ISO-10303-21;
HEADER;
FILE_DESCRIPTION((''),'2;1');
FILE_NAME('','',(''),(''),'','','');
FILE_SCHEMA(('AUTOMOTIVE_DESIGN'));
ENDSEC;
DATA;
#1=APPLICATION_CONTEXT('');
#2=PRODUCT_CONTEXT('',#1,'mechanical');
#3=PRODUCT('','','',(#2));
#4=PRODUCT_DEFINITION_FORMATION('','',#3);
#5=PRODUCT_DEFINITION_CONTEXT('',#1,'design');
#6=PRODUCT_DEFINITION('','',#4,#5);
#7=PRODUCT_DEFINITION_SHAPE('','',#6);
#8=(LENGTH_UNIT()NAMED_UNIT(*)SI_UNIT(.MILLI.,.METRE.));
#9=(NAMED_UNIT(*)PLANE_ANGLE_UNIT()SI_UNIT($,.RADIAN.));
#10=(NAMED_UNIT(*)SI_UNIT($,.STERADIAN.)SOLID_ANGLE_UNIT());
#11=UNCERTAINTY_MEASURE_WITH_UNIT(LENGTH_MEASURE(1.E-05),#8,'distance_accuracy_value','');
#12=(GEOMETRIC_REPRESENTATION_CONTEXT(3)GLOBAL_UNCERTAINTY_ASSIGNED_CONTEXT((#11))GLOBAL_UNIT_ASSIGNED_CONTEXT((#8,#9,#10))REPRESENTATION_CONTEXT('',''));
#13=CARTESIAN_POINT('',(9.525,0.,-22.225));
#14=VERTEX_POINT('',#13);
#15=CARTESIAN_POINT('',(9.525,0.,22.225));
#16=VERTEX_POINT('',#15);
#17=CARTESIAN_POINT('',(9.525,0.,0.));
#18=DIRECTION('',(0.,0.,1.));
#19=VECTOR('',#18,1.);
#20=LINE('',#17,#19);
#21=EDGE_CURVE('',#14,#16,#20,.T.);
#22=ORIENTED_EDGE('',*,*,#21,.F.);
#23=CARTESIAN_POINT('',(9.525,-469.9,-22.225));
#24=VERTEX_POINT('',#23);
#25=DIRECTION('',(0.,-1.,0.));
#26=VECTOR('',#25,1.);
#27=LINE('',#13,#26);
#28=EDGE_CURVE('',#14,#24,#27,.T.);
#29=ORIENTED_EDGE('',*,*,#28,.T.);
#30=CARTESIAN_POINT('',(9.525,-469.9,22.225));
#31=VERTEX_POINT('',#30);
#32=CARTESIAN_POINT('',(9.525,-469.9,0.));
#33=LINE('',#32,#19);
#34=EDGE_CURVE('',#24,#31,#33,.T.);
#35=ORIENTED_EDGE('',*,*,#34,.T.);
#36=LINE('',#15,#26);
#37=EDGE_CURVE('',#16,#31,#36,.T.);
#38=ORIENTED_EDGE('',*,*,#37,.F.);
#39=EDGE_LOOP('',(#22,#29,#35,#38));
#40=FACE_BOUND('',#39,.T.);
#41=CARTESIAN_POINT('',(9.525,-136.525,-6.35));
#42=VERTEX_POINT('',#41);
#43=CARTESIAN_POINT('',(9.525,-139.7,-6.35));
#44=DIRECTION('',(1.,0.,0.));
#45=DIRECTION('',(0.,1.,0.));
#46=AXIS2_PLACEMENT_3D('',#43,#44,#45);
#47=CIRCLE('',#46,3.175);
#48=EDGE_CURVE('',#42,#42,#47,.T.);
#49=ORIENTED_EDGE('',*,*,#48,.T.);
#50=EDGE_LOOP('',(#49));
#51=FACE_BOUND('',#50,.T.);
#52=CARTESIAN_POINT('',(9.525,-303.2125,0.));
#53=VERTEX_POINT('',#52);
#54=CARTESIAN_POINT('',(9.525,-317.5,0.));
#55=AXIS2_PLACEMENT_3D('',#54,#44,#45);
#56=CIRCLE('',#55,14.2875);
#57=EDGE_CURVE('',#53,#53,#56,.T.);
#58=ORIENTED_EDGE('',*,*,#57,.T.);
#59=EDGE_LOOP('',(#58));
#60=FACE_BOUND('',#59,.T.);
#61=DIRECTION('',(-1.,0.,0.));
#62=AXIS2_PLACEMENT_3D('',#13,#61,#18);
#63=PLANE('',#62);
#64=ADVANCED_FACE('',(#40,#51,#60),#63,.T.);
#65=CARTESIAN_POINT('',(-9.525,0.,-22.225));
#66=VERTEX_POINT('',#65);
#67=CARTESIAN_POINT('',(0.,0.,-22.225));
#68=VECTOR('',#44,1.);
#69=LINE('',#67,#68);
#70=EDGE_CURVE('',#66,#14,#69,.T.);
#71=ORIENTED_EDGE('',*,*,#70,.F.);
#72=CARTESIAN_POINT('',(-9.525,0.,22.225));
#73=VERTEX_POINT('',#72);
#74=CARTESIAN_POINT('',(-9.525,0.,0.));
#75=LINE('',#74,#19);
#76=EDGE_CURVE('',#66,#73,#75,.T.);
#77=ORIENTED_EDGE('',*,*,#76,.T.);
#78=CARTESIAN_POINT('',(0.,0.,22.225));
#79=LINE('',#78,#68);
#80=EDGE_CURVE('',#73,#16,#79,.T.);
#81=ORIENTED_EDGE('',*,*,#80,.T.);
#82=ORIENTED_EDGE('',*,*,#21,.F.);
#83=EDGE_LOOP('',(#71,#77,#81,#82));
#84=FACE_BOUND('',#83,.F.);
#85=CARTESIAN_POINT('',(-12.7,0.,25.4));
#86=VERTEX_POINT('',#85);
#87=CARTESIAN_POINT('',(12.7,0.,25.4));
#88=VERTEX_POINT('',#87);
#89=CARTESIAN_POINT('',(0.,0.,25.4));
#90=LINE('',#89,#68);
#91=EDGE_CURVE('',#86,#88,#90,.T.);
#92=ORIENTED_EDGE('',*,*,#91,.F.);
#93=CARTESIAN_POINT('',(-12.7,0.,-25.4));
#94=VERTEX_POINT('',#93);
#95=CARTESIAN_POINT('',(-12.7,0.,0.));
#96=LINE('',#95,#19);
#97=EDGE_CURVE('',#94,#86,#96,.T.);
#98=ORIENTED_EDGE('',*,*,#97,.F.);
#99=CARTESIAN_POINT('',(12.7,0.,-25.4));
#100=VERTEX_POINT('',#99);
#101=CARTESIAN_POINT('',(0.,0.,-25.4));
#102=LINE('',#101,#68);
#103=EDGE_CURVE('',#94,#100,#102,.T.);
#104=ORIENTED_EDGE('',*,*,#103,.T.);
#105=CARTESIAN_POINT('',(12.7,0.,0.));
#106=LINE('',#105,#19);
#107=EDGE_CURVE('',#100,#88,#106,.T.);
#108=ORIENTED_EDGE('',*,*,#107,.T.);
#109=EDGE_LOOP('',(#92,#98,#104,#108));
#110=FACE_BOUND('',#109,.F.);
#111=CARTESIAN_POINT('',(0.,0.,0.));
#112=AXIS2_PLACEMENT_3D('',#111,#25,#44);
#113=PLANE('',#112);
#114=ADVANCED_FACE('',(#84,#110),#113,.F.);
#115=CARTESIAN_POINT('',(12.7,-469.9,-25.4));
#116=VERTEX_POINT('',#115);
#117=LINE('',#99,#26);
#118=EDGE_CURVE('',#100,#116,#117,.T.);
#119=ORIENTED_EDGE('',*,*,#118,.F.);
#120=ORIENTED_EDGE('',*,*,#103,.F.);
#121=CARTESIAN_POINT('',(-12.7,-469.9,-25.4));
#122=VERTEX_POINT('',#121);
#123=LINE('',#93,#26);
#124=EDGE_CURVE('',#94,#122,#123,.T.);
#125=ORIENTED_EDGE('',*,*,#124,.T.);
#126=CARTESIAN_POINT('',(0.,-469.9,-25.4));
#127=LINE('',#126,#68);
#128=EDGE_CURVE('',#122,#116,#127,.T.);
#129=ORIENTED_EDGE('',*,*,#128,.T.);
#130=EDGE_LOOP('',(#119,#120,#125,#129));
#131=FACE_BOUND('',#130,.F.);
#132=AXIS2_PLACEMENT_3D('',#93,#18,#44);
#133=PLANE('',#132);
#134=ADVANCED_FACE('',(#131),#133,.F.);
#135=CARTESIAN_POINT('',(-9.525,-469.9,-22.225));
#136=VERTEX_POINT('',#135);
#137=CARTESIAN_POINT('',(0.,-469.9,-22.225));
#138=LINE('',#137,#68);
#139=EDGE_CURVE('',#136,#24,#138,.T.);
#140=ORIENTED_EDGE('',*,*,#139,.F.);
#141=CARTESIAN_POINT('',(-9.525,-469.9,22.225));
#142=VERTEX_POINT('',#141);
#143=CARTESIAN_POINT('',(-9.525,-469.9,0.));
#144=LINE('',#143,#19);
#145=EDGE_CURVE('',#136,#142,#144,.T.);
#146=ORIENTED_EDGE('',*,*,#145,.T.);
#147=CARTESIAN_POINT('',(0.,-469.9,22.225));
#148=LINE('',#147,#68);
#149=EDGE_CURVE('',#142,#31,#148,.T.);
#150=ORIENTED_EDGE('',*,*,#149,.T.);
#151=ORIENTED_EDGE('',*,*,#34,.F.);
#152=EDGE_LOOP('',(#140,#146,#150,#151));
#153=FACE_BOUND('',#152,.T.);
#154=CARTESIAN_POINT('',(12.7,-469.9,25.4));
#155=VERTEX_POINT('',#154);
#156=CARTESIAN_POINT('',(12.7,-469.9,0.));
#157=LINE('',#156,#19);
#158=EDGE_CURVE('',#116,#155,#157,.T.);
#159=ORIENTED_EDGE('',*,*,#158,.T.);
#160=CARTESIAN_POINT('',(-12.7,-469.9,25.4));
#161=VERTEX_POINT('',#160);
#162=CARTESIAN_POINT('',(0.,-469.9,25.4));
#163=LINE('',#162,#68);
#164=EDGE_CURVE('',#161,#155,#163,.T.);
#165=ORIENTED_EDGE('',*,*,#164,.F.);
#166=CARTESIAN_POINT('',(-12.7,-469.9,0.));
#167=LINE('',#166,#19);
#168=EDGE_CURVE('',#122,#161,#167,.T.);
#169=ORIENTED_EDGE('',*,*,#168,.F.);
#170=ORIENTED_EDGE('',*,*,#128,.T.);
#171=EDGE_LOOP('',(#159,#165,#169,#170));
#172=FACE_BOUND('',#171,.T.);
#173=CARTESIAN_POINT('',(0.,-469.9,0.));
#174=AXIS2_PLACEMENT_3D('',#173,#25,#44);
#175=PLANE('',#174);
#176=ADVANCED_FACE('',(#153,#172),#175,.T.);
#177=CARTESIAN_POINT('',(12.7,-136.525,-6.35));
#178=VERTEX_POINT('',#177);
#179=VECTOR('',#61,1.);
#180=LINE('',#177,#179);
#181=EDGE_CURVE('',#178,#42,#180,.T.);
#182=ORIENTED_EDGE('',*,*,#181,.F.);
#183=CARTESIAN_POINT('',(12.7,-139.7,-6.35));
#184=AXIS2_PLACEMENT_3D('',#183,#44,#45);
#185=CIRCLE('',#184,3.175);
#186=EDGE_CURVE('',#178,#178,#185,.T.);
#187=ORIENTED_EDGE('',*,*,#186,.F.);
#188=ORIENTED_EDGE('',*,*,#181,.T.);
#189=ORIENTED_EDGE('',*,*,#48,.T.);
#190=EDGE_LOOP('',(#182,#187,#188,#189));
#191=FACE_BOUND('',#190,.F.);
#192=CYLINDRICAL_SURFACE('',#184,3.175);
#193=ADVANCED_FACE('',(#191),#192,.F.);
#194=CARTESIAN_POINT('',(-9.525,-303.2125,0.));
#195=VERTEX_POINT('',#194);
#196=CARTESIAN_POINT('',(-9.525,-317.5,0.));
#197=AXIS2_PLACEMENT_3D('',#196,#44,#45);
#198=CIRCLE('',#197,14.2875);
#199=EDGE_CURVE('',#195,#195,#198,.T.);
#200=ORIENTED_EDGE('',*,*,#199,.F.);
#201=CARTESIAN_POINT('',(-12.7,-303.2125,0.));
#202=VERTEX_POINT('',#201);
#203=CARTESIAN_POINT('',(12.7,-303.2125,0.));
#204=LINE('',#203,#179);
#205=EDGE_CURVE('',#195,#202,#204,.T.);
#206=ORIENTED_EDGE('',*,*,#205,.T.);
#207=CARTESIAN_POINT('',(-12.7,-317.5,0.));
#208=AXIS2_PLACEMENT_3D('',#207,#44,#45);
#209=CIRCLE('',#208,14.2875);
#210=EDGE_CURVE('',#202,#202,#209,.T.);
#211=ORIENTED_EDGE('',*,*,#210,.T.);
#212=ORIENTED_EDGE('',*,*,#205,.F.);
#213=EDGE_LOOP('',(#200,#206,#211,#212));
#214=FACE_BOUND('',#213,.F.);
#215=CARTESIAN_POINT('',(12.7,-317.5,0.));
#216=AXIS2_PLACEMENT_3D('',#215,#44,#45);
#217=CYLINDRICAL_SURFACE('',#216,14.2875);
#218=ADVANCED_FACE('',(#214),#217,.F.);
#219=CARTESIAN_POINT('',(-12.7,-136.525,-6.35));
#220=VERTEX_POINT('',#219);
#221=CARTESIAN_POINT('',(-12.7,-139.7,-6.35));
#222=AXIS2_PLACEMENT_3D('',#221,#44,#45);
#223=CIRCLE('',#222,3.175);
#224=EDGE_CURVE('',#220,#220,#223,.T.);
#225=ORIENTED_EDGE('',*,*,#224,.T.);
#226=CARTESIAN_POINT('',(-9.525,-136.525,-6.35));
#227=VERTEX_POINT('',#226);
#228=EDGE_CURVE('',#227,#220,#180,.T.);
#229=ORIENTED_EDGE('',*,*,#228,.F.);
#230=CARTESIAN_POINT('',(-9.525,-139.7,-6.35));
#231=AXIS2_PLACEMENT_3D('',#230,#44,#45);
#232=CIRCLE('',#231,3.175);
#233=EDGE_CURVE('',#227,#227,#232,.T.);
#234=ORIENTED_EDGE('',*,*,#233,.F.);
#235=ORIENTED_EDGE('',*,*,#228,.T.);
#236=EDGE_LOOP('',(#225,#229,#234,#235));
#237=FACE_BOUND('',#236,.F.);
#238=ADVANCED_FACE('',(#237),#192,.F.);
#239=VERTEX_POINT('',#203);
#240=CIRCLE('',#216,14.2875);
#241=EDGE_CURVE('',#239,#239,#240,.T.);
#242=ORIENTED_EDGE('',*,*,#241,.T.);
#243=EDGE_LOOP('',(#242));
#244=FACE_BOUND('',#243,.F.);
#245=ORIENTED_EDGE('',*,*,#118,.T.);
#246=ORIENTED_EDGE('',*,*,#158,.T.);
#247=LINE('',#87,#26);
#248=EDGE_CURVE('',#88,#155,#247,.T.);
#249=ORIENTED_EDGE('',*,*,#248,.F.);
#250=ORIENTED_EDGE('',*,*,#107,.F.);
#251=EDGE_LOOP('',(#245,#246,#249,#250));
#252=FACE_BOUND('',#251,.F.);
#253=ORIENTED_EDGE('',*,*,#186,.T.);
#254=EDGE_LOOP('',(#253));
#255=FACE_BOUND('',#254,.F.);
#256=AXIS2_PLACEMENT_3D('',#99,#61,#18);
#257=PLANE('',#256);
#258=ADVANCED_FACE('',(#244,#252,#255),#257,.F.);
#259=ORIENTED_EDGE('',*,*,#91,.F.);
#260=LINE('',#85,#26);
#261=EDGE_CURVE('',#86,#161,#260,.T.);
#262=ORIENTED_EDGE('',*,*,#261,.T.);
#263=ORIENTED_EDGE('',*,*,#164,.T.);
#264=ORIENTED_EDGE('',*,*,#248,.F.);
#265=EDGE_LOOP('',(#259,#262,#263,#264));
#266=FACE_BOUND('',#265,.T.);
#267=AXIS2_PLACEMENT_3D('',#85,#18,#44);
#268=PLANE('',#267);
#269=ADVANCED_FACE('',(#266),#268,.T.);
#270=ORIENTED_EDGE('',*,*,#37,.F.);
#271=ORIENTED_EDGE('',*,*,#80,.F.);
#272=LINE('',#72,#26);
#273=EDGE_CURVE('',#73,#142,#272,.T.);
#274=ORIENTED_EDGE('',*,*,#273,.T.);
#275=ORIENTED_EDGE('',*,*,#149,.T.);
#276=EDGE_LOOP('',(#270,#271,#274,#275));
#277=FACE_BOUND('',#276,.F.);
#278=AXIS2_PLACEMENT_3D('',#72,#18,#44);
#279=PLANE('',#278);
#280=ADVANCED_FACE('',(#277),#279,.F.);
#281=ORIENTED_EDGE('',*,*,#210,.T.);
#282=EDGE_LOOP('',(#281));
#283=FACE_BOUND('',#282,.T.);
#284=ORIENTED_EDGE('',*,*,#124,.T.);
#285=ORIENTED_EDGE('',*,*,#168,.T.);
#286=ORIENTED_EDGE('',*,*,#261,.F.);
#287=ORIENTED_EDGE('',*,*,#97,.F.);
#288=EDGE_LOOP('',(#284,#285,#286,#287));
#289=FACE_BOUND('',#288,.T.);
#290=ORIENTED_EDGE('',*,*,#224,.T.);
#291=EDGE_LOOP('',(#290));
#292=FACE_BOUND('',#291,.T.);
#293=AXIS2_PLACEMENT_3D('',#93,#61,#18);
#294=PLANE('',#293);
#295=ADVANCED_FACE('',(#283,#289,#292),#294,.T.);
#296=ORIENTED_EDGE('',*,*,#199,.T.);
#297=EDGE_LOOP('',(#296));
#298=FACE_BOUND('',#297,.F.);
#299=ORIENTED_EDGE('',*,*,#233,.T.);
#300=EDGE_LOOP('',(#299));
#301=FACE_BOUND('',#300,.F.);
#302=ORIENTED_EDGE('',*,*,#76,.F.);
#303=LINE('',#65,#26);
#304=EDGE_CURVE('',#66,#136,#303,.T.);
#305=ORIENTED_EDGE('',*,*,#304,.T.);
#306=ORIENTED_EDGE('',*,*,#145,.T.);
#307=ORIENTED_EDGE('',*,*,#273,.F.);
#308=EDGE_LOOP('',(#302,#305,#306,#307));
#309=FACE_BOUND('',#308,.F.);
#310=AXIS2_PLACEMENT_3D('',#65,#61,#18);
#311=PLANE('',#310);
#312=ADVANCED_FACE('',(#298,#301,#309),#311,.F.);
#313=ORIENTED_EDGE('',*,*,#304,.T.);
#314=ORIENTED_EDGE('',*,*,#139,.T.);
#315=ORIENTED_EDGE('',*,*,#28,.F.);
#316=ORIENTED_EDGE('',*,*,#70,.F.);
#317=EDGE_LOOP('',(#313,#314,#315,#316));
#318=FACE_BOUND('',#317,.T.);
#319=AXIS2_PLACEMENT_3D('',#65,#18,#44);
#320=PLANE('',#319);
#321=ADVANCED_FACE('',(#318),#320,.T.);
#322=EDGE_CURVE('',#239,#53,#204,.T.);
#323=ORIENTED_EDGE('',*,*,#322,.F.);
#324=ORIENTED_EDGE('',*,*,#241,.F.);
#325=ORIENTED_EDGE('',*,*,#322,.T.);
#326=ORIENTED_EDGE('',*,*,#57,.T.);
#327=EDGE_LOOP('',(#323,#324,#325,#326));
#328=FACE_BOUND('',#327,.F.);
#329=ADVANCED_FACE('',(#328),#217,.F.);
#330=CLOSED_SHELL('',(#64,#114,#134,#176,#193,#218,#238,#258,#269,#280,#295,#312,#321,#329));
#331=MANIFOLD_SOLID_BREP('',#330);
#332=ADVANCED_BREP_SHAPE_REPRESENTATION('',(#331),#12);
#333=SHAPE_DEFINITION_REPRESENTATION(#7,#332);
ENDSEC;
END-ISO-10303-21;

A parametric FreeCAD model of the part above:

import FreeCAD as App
import Part
import Sketcher
Q = App.Units.Quantity


def add_polygon(sketch, points):
    """Adds a closed chain of lines whose ends are joined by coincident constraints."""
    first, n = sketch.GeometryCount, len(points)
    for a, b in zip(points, points[1:] + points[:1]):
        sketch.addGeometry(Part.LineSegment(App.Vector(*a, 0), App.Vector(*b, 0)), False)
    for i in range(n):
        sketch.addConstraint(Sketcher.Constraint("Coincident", first + i, 2, first + (i + 1) % n, 1))

doc = App.newDocument("Part")
body = doc.addObject("PartDesign::Body", "Body")

# Sketch on XZ plane
sketch1 = body.newObject("Sketcher::SketchObject", "Sketch")
sketch1.AttachmentSupport = (doc.getObject("XZ_Plane"), [""])
sketch1.MapMode = "FlatFace"
add_polygon(sketch1, [(-13, 25), (-13, -25), (13, -25), (13, 25)])  # lines 0-3
add_polygon(sketch1, [(10, -22), (-10, -22), (-10, 22), (10, 22)])  # lines 4-7
sketch1.addConstraint([
    Sketcher.Constraint("Vertical", 0),
    Sketcher.Constraint("Horizontal", 1),
    Sketcher.Constraint("Vertical", 2),
    Sketcher.Constraint("Horizontal", 3),
    Sketcher.Constraint("Horizontal", 4),
    Sketcher.Constraint("Vertical", 5),
    Sketcher.Constraint("Horizontal", 6),
    Sketcher.Constraint("Vertical", 7),
    Sketcher.Constraint("Symmetric", 0, 2, 2, 2, -1, 1),
    Sketcher.Constraint("Symmetric", 4, 2, 6, 2, -1, 1),
    Sketcher.Constraint("DistanceX", 1, 1, 1, 2, Q("1 in")),
    Sketcher.Constraint("DistanceY", 0, 2, 0, 1, Q("2 in")),
    Sketcher.Constraint("DistanceX", 4, 2, 4, 1, Q("0.75 in")),
    Sketcher.Constraint("DistanceY", 5, 1, 5, 2, Q("1.75 in")),
])
pad1 = body.newObject("PartDesign::Pad", "Pad")
pad1.Profile = sketch1
pad1.Length = Q("18.5 in")

# Sketch on YZ plane
sketch2 = body.newObject("Sketcher::SketchObject", "Sketch001")
sketch2.AttachmentSupport = (doc.getObject("YZ_Plane"), [""])
sketch2.MapMode = "FlatFace"
sketch2.AttachmentOffset = App.Placement(App.Vector(0, 0, 0.5 * 25.4), App.Rotation())
sketch2.addGeometry([
    Part.Circle(App.Vector(-317.5, 0, 0), App.Vector(0, 0, 1), 14.3),
    Part.Circle(App.Vector(-139.7, -6.3, 0), App.Vector(0, 0, 1), 3.2),
], False)
sketch2.addConstraint([
    Sketcher.Constraint("PointOnObject", 0, 3, -1),
    Sketcher.Constraint("Diameter", 1, Q("0.25 in")),
    Sketcher.Constraint("Diameter", 0, Q("1.125 in")),
    Sketcher.Constraint("DistanceX", 0, 3, 1, 3, Q("7 in")),
    Sketcher.Constraint("DistanceX", 0, 3, -1, 1, Q("12.5 in")),
    Sketcher.Constraint("DistanceY", 1, 3, -1, 1, Q("0.25 in")),
])
pocket1 = body.newObject("PartDesign::Pocket", "Pocket")
pocket1.Profile = sketch2
pocket1.Length = Q("1 in")

doc.recompute()
